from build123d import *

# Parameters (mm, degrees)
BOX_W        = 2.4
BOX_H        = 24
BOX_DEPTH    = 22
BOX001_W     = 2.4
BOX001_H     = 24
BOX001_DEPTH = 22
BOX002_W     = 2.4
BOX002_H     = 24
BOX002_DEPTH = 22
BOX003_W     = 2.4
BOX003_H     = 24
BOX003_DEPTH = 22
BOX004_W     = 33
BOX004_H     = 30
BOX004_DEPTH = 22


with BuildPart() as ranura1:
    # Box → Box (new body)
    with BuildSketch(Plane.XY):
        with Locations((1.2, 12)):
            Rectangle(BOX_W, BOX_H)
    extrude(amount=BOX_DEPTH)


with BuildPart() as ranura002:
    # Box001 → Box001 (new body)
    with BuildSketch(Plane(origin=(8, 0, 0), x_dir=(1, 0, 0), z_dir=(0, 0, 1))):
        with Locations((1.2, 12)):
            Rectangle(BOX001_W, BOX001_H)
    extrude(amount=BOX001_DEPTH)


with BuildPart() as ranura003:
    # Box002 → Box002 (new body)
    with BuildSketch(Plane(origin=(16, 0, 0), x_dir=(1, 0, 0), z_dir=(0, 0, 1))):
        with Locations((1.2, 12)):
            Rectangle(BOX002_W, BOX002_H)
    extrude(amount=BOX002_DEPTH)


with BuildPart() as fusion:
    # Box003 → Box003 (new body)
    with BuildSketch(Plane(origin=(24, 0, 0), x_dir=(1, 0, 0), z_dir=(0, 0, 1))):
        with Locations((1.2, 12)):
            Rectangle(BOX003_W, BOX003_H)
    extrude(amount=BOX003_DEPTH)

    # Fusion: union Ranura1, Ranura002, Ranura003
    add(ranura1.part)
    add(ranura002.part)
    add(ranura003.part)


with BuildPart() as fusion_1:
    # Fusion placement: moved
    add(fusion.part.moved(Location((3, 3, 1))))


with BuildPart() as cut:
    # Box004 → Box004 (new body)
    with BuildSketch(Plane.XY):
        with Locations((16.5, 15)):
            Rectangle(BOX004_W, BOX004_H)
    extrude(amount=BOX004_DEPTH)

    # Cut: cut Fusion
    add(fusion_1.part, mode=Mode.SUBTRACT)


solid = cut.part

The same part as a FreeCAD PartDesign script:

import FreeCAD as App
import Part
import Sketcher

V = App.Vector
Q = App.Units.Quantity


def add_polygon(sketch, points):
    """Adds a closed chain of lines whose ends are joined by coincident constraints."""
    first, n = sketch.GeometryCount, len(points)
    for a, b in zip(points, points[1:] + points[:1]):
        sketch.addGeometry(Part.LineSegment(App.Vector(*a, 0), App.Vector(*b, 0)), False)
    for i in range(n):
        sketch.addConstraint(Sketcher.Constraint("Coincident", first + i, 2, first + (i + 1) % n, 1))

doc = App.newDocument("Part")
body = doc.addObject("PartDesign::Body", "Body")

# Sketch on XY plane
sketch1 = doc.addObject("Sketcher::SketchObject", "Sketch")
body.addObject(sketch1)
sketch1.AttachmentSupport = (doc.XY_Plane, [""])
sketch1.MapMode = "FlatFace"
add_polygon(sketch1, [(0, 24), (0, 0), (2.4, 0), (2.4, 24)])  # lines 0-3
sketch1.addConstraint(Sketcher.Constraint("Vertical", 0))
sketch1.addConstraint(Sketcher.Constraint("Horizontal", 1))
sketch1.addConstraint(Sketcher.Constraint("Vertical", 2))
sketch1.addConstraint(Sketcher.Constraint("Horizontal", 3))
sketch1.addConstraint(Sketcher.Constraint("Coincident", 0, 2, -1, 1))
sketch1.addConstraint(Sketcher.Constraint("DistanceY", 0, 2, 0, 1, Q("24 mm")))
sketch1.addConstraint(Sketcher.Constraint("DistanceX", 1, 1, 1, 2, Q("2.4 mm")))
pad1 = doc.addObject("PartDesign::Pad", "Pad")
body.addObject(pad1)
pad1.Profile = sketch1
pad1.Length = 22
body2 = doc.addObject("PartDesign::Body", "Body001")

# Sketch on XY plane
sketch2 = doc.addObject("Sketcher::SketchObject", "Sketch001")
body2.addObject(sketch2)
sketch2.AttachmentSupport = (doc.getObject("XY_Plane001"), [""])
sketch2.MapMode = "FlatFace"
add_polygon(sketch2, [(8, 24), (8, 0), (10.4, 0), (10.4, 24)])  # lines 0-3
sketch2.addConstraint(Sketcher.Constraint("Vertical", 0))
sketch2.addConstraint(Sketcher.Constraint("Horizontal", 1))
sketch2.addConstraint(Sketcher.Constraint("Vertical", 2))
sketch2.addConstraint(Sketcher.Constraint("Horizontal", 3))
sketch2.addConstraint(Sketcher.Constraint("PointOnObject", 0, 2, -1))
sketch2.addConstraint(Sketcher.Constraint("DistanceY", 0, 2, 0, 1, Q("24 mm")))
sketch2.addConstraint(Sketcher.Constraint("DistanceX", 1, 1, 1, 2, Q("2.4 mm")))
sketch2.addConstraint(Sketcher.Constraint("DistanceX", -1, 1, 0, 2, Q("8 mm")))
pad2 = doc.addObject("PartDesign::Pad", "Pad001")
body2.addObject(pad2)
pad2.Profile = sketch2
pad2.Length = 22
body3 = doc.addObject("PartDesign::Body", "Body002")

# Sketch on XY plane
sketch3 = doc.addObject("Sketcher::SketchObject", "Sketch002")
body3.addObject(sketch3)
sketch3.AttachmentSupport = (doc.getObject("XY_Plane002"), [""])
sketch3.MapMode = "FlatFace"
add_polygon(sketch3, [(16, 24), (16, 0), (18.4, 0), (18.4, 24)])  # lines 0-3
sketch3.addConstraint(Sketcher.Constraint("Vertical", 0))
sketch3.addConstraint(Sketcher.Constraint("Horizontal", 1))
sketch3.addConstraint(Sketcher.Constraint("Vertical", 2))
sketch3.addConstraint(Sketcher.Constraint("Horizontal", 3))
sketch3.addConstraint(Sketcher.Constraint("PointOnObject", 0, 2, -1))
sketch3.addConstraint(Sketcher.Constraint("DistanceY", 0, 2, 0, 1, Q("24 mm")))
sketch3.addConstraint(Sketcher.Constraint("DistanceX", 1, 1, 1, 2, Q("2.4 mm")))
sketch3.addConstraint(Sketcher.Constraint("DistanceX", -1, 1, 0, 2, Q("16 mm")))
pad3 = doc.addObject("PartDesign::Pad", "Pad002")
body3.addObject(pad3)
pad3.Profile = sketch3
pad3.Length = 22
body4 = doc.addObject("PartDesign::Body", "Body003")
body4.AllowCompound = True

# Sketch on XY plane
sketch4 = doc.addObject("Sketcher::SketchObject", "Sketch003")
body4.addObject(sketch4)
sketch4.AttachmentSupport = (doc.getObject("XY_Plane003"), [""])
sketch4.MapMode = "FlatFace"
add_polygon(sketch4, [(24, 24), (24, 0), (26.4, 0), (26.4, 24)])  # lines 0-3
sketch4.addConstraint(Sketcher.Constraint("Vertical", 0))
sketch4.addConstraint(Sketcher.Constraint("Horizontal", 1))
sketch4.addConstraint(Sketcher.Constraint("Vertical", 2))
sketch4.addConstraint(Sketcher.Constraint("Horizontal", 3))
sketch4.addConstraint(Sketcher.Constraint("PointOnObject", 0, 2, -1))
sketch4.addConstraint(Sketcher.Constraint("DistanceY", 0, 2, 0, 1, Q("24 mm")))
sketch4.addConstraint(Sketcher.Constraint("DistanceX", 1, 1, 1, 2, Q("2.4 mm")))
sketch4.addConstraint(Sketcher.Constraint("DistanceX", -1, 1, 0, 2, Q("24 mm")))
pad4 = doc.addObject("PartDesign::Pad", "Pad003")
body4.addObject(pad4)
pad4.Profile = sketch4
pad4.Length = 22
doc.recompute()

boolean = doc.addObject("PartDesign::Boolean", "Boolean")
body4.addObject(boolean)
boolean.Type = "Fuse"
boolean.addObjects([body])
doc.recompute()

boolean2 = doc.addObject("PartDesign::Boolean", "Boolean001")
body4.addObject(boolean2)
boolean2.Type = "Fuse"
boolean2.addObjects([body2])
doc.recompute()

boolean3 = doc.addObject("PartDesign::Boolean", "Boolean002")
body4.addObject(boolean3)
boolean3.Type = "Fuse"
boolean3.addObjects([body3])
body5 = doc.addObject("PartDesign::Body", "Body004")
body5.AllowCompound = True
doc.recompute()

body4.Placement = App.Placement(V(3, 3, 1), App.Rotation(V(0, 0, 1), 0))
boolean4 = doc.addObject("PartDesign::Boolean", "Boolean003")
body5.addObject(boolean4)
boolean4.Type = "Fuse"
boolean4.addObjects([body4])
body6 = doc.addObject("PartDesign::Body", "Body005")

# Sketch on XY plane
sketch5 = doc.addObject("Sketcher::SketchObject", "Sketch004")
body6.addObject(sketch5)
sketch5.AttachmentSupport = (doc.getObject("XY_Plane005"), [""])
sketch5.MapMode = "FlatFace"
add_polygon(sketch5, [(0, 30), (0, 0), (33, 0), (33, 30)])  # lines 0-3
sketch5.addConstraint(Sketcher.Constraint("Vertical", 0))
sketch5.addConstraint(Sketcher.Constraint("Horizontal", 1))
sketch5.addConstraint(Sketcher.Constraint("Vertical", 2))
sketch5.addConstraint(Sketcher.Constraint("Horizontal", 3))
sketch5.addConstraint(Sketcher.Constraint("Coincident", 0, 2, -1, 1))
sketch5.addConstraint(Sketcher.Constraint("DistanceX", 1, 1, 1, 2, Q("33 mm")))
sketch5.addConstraint(Sketcher.Constraint("DistanceY", 0, 2, 0, 1, Q("30 mm")))
pad5 = doc.addObject("PartDesign::Pad", "Pad004")
body6.addObject(pad5)
pad5.Profile = sketch5
pad5.Length = 22
doc.recompute()

boolean5 = doc.addObject("PartDesign::Boolean", "Boolean004")
body6.addObject(boolean5)
boolean5.Type = "Cut"
boolean5.addObjects([body5])

doc.recompute()
